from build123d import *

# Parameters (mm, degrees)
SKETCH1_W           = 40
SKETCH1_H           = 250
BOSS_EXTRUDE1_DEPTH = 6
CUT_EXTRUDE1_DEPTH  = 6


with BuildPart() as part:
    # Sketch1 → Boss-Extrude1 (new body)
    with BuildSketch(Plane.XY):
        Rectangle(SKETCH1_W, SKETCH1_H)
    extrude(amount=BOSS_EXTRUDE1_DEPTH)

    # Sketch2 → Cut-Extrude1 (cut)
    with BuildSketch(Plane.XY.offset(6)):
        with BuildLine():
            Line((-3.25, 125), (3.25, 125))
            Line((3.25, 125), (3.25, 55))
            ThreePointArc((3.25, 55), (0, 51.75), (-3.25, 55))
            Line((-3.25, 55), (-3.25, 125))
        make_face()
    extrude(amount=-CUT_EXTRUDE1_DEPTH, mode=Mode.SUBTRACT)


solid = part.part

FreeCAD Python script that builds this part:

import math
import FreeCAD as App
import Part
import Sketcher


def add_polygon(sketch, points):
    """Adds a closed chain of lines whose ends are joined by coincident constraints."""
    first, n = sketch.GeometryCount, len(points)
    for a, b in zip(points, points[1:] + points[:1]):
        sketch.addGeometry(Part.LineSegment(App.Vector(*a, 0), App.Vector(*b, 0)), False)
    for i in range(n):
        sketch.addConstraint(Sketcher.Constraint("Coincident", first + i, 2, first + (i + 1) % n, 1))

doc = App.newDocument("Part")
body = doc.addObject("PartDesign::Body", "Body")

# Sketch on XY plane
sketch1 = body.newObject("Sketcher::SketchObject", "Sketch")
sketch1.AttachmentSupport = (doc.getObject("XY_Plane"), [""])
sketch1.MapMode = "FlatFace"
add_polygon(sketch1, [(-20, 125), (-20, -125), (20, -125), (20, 125)])  # lines 0-3
sketch1.addConstraint([
    Sketcher.Constraint("Vertical", 0),
    Sketcher.Constraint("Horizontal", 1),
    Sketcher.Constraint("Vertical", 2),
    Sketcher.Constraint("Horizontal", 3),
    Sketcher.Constraint("Symmetric", 0, 2, 2, 2, -1, 1),
    Sketcher.Constraint("DistanceX", 1, 1, 1, 2, 40.0),
    Sketcher.Constraint("DistanceY", 0, 2, 0, 1, 250.0),
])
pad1 = body.newObject("PartDesign::Pad", "Pad")
pad1.Profile = sketch1
pad1.Length = 6

# Sketch on XY plane
sketch2 = body.newObject("Sketcher::SketchObject", "Sketch001")
sketch2.AttachmentSupport = (doc.getObject("XY_Plane"), [""])
sketch2.MapMode = "FlatFace"
sketch2.AttachmentOffset = App.Placement(App.Vector(0, 0, 6), App.Rotation())
sketch2.addGeometry([
    Part.LineSegment(App.Vector(3.2, 125, 0), App.Vector(-3.2, 125, 0)),
    Part.LineSegment(App.Vector(-3.2, 125, 0), App.Vector(-3.2, 55, 0)),
    Part.ArcOfCircle(Part.Circle(App.Vector(0, 55, 0), App.Vector(0, 0, 1), 3.2), math.radians(180), math.radians(360)),
    Part.LineSegment(App.Vector(3.2, 55, 0), App.Vector(3.2, 125, 0)),
], False)
sketch2.addConstraint([
    Sketcher.Constraint("Coincident", 0, 2, 1, 1),
    Sketcher.Constraint("Tangent", 1, 2, 2, 1),
    Sketcher.Constraint("Tangent", 2, 2, 3, 1),
    Sketcher.Constraint("Coincident", 3, 2, 0, 1),
    Sketcher.Constraint("Horizontal", 0),
    Sketcher.Constraint("Vertical", 1),
    Sketcher.Constraint("Vertical", 3),
    Sketcher.Constraint("PointOnObject", 2, 3, -2),
    Sketcher.Constraint("DistanceY", 1, 2, 1, 1, 70.0),
    Sketcher.Constraint("Radius", 2, 3.25),
    Sketcher.Constraint("DistanceY", -1, 1, 2, 3, 55.0),
])
pocket1 = body.newObject("PartDesign::Pocket", "Pocket")
pocket1.Profile = sketch2
pocket1.Length = 6

doc.recompute()
